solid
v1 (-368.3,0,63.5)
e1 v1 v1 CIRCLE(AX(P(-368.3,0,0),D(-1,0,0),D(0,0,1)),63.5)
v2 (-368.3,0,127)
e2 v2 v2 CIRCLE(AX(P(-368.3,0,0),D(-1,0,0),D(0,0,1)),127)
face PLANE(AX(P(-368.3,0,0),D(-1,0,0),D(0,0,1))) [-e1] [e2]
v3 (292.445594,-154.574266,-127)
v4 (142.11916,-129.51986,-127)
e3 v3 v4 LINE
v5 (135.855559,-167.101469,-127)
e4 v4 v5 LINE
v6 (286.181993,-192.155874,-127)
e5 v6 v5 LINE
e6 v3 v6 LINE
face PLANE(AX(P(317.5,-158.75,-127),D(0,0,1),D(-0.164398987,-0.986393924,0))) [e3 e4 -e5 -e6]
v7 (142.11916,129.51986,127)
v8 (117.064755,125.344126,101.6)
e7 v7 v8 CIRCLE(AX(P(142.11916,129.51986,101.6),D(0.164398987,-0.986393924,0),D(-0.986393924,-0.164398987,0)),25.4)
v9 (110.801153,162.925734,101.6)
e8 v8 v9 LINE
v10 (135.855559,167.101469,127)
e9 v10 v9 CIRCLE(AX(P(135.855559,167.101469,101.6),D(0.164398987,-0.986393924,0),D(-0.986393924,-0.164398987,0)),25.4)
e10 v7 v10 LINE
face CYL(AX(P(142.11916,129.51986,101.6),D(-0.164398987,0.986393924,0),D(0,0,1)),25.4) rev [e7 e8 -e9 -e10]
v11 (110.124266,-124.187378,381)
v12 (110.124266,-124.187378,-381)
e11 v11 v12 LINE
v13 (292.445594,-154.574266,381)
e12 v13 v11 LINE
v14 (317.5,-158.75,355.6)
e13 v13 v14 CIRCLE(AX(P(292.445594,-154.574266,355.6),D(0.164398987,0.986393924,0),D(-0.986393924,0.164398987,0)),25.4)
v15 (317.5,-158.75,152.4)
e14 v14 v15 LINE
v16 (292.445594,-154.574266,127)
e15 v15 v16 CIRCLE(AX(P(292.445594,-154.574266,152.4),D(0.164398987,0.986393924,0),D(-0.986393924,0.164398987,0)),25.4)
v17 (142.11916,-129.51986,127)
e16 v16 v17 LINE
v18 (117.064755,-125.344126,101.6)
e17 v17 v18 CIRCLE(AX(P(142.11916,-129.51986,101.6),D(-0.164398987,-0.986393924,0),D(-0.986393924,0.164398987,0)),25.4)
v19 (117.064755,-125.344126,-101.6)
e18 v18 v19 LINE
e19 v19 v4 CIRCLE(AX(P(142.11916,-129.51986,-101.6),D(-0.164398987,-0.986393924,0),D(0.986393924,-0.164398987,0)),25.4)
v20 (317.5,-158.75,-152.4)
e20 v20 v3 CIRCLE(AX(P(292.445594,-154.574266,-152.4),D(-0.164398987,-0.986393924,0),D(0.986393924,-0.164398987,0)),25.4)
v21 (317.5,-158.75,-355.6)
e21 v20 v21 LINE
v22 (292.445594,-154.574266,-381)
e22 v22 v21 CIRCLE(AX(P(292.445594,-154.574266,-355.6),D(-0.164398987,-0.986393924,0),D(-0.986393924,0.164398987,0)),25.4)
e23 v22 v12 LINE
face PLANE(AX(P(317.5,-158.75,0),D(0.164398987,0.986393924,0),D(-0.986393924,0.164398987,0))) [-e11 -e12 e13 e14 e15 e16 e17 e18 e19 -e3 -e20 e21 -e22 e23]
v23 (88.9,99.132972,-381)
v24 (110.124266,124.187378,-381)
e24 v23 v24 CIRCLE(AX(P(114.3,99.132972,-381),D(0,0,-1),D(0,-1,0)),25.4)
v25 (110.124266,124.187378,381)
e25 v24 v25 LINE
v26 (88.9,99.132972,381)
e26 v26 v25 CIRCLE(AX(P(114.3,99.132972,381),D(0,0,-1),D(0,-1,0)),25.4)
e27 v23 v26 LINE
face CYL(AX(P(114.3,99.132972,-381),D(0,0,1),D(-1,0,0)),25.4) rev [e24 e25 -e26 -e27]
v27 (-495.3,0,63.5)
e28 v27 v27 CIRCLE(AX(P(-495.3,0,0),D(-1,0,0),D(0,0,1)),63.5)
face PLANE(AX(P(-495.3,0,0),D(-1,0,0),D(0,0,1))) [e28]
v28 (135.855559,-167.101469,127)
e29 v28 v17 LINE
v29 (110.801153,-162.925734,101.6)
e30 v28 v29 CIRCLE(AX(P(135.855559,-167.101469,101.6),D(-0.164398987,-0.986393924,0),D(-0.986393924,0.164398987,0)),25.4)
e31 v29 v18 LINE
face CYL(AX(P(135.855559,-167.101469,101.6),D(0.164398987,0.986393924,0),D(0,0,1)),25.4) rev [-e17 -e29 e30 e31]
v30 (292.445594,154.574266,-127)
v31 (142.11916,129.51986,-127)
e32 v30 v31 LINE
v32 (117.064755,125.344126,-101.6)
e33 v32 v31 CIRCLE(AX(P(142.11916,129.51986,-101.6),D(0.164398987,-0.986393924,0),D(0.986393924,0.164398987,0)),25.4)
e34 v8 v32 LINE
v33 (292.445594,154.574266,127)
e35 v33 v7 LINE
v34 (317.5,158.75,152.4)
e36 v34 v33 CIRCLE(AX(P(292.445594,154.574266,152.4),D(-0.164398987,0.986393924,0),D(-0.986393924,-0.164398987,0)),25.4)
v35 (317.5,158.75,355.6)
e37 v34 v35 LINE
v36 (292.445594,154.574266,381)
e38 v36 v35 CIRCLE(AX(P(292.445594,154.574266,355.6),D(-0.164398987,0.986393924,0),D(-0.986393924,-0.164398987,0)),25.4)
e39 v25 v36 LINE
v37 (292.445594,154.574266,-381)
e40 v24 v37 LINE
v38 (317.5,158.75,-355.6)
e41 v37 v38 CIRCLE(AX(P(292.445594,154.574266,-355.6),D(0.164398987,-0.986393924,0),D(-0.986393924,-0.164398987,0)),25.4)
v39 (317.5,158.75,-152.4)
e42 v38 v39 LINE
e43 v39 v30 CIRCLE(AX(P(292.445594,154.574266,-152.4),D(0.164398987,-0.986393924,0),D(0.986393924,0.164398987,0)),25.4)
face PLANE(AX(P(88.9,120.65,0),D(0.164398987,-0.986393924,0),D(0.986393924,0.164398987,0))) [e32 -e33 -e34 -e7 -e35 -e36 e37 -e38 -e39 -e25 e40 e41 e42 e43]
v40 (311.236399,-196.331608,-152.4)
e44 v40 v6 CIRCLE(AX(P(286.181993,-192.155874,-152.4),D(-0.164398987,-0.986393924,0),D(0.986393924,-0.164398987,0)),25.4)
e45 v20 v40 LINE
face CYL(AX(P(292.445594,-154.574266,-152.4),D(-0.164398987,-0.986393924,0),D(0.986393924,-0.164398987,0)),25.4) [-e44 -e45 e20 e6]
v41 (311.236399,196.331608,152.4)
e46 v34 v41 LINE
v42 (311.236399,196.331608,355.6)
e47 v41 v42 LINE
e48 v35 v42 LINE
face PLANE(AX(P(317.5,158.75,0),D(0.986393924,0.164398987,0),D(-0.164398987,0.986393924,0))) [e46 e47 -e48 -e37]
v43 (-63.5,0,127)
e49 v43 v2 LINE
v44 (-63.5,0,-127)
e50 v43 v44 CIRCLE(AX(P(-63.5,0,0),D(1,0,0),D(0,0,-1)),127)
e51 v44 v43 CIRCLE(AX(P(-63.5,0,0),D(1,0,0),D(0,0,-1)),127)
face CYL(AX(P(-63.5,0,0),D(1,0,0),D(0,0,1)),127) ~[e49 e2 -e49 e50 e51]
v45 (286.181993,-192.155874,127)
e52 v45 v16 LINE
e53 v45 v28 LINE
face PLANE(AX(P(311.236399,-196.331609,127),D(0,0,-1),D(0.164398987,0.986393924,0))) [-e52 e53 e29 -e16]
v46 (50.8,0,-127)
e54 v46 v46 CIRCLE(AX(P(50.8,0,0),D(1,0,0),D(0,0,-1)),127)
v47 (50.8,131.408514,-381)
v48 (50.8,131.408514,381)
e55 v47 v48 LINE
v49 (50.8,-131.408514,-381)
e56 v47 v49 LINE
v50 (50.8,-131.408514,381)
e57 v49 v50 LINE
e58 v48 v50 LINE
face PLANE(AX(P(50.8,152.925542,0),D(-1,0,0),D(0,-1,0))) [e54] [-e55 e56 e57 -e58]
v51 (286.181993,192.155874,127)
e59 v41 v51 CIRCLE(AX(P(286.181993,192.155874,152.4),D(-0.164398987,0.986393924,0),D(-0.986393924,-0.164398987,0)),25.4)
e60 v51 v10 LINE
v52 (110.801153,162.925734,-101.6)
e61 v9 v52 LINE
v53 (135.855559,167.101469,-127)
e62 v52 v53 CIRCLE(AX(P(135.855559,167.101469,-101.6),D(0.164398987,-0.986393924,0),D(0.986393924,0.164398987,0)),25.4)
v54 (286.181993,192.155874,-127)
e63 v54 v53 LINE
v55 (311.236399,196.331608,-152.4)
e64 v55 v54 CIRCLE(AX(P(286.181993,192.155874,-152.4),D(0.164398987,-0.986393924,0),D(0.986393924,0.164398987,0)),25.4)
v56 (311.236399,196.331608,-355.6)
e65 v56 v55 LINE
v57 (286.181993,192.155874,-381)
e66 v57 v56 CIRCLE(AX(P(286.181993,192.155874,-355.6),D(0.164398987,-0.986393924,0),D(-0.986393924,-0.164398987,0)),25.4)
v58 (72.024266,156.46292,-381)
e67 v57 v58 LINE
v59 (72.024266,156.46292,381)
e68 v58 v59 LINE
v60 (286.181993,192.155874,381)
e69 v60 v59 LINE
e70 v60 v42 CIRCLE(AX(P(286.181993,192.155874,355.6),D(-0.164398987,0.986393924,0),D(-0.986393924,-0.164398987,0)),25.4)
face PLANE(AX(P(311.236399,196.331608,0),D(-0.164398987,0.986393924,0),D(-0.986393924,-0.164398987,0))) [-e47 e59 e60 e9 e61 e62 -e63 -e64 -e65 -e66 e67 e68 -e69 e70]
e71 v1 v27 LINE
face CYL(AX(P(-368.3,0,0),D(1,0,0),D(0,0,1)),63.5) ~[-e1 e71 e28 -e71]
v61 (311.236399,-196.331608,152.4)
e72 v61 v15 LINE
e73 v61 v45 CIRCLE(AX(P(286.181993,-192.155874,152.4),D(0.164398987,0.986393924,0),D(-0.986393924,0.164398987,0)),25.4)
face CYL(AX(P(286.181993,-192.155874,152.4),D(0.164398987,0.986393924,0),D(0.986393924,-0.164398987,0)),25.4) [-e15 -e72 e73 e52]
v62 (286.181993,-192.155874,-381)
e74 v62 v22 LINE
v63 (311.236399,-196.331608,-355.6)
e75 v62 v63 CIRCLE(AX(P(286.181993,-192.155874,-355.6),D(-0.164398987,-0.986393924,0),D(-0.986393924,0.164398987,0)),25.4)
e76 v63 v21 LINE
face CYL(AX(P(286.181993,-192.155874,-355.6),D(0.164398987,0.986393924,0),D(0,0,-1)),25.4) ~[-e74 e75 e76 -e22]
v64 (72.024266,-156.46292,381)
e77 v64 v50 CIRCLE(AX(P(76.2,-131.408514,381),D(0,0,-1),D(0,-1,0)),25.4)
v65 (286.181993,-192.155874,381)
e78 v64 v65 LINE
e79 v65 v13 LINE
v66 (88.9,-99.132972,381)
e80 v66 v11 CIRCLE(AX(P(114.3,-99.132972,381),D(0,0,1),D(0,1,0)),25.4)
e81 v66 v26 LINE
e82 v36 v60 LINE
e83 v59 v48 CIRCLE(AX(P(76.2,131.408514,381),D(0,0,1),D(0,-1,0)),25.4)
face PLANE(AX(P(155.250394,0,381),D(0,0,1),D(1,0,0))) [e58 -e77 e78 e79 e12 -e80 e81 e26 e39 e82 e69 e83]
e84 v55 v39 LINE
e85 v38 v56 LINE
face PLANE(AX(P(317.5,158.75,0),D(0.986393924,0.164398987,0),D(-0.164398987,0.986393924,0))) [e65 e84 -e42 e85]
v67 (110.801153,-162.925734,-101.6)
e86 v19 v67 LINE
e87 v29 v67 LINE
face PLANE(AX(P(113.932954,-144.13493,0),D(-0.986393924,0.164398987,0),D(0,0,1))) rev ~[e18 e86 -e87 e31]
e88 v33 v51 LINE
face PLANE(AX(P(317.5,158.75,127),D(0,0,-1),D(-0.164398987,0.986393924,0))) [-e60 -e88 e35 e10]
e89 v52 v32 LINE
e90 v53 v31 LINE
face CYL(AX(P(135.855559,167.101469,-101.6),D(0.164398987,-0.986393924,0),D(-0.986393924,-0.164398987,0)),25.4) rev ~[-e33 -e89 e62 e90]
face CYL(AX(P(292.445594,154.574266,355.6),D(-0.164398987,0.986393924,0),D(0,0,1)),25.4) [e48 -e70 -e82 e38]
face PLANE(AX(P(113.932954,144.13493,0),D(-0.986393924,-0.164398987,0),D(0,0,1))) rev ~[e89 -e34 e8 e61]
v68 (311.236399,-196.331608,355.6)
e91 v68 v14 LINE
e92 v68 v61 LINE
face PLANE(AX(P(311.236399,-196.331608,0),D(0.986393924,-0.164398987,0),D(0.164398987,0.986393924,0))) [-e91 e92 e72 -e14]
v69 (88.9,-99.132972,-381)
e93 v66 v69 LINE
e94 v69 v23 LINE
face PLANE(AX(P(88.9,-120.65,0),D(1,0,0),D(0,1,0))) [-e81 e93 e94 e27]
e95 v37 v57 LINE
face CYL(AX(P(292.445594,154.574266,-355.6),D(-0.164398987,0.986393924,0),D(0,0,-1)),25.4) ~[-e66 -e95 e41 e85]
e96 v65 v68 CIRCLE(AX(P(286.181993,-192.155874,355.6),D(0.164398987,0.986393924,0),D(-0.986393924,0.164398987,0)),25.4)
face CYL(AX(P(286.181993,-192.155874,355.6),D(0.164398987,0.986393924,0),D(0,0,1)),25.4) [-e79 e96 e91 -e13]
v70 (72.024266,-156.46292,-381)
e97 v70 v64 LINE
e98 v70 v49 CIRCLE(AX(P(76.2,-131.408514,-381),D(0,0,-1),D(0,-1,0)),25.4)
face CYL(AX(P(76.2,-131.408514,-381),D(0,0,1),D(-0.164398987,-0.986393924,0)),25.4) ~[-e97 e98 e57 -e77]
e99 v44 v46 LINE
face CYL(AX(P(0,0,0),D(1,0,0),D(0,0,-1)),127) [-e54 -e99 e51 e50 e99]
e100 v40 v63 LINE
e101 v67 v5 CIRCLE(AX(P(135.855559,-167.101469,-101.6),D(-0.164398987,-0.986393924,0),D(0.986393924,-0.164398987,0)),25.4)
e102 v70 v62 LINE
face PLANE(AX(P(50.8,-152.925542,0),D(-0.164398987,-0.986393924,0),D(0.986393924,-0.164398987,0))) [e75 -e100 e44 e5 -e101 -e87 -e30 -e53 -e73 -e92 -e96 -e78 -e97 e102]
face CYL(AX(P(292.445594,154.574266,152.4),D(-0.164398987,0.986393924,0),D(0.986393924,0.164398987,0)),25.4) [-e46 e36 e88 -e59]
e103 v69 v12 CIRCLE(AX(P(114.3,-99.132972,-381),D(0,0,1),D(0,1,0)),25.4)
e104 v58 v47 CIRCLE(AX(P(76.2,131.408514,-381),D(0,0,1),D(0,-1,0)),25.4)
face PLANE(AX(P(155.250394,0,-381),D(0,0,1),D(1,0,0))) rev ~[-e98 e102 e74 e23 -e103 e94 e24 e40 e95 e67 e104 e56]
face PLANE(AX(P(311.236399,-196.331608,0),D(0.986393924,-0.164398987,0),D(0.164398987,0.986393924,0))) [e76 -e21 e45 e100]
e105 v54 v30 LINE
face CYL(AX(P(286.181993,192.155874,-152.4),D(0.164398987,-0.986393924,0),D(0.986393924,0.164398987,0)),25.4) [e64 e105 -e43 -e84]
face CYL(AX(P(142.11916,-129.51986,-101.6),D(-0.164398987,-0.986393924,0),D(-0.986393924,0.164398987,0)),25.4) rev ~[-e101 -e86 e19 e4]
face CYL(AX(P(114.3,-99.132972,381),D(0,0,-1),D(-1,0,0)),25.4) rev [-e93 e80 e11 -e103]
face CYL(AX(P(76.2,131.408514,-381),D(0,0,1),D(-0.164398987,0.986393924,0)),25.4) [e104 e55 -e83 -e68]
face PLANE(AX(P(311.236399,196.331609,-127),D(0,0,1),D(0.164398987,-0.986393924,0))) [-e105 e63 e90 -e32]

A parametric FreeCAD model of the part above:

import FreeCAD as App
import Part
import Sketcher

V = App.Vector
Q = App.Units.Quantity


def edges_at(feature, points):
    """Names of the edges that pass closest to the given points."""
    edges = feature.Shape.Edges
    near = lambda p: min(range(len(edges)), key=lambda i: edges[i].distToShape(Part.Vertex(*p))[0])
    return sorted({f"Edge{near(p) + 1}" for p in points})


def add_polygon(sketch, points):
    """Adds a closed chain of lines whose ends are joined by coincident constraints."""
    first, n = sketch.GeometryCount, len(points)
    for a, b in zip(points, points[1:] + points[:1]):
        sketch.addGeometry(Part.LineSegment(App.Vector(*a, 0), App.Vector(*b, 0)), False)
    for i in range(n):
        sketch.addConstraint(Sketcher.Constraint("Coincident", first + i, 2, first + (i + 1) % n, 1))

doc = App.newDocument("Part")
body = doc.addObject("PartDesign::Body", "Body")

# Sketch on YZ plane
sketch1 = doc.addObject("Sketcher::SketchObject", "Sketch")
body.addObject(sketch1)
sketch1.AttachmentSupport = (doc.YZ_Plane, [""])
sketch1.MapMode = "FlatFace"
sketch1.addGeometry(Part.Circle(V(0, 0, 0), V(0, 0, 1), 127), False)
sketch1.addConstraint([
    Sketcher.Constraint("Coincident", 0, 3, -1, 1),
    Sketcher.Constraint("Diameter", 0, Q("10 in")),
])
pad1 = doc.addObject("PartDesign::Pad", "Pad")
body.addObject(pad1)
pad1.Profile = sketch1
pad1.Length = Q("5 in")
pad1.Midplane = True

# Sketch on XY plane
sketch2 = doc.addObject("Sketcher::SketchObject", "Sketch001")
body.addObject(sketch2)
sketch2.AttachmentSupport = (doc.XY_Plane, [""])
sketch2.MapMode = "FlatFace"
add_polygon(sketch2, [(88.9, -120.65), (88.9, 120.65), (317.5, 158.75), (311.236399, 196.331608), (50.8, 152.925542), (50.8, -152.925542), (311.236399, -196.331608), (317.5, -158.75)])  # lines 0-7
sketch2.addConstraint([
    Sketcher.Constraint("Vertical", 0),
    Sketcher.Constraint("Vertical", 4),
    Sketcher.Constraint("Symmetric", 2, 2, 5, 2, -1),
    Sketcher.Constraint("Symmetric", 1, 2, 6, 2, -1),
    Sketcher.Constraint("Perpendicular", 1, 2),
    Sketcher.Constraint("Perpendicular", 2, 3),
    Sketcher.Constraint("Perpendicular", 5, 6),
    Sketcher.Constraint("Perpendicular", 6, 7),
    Sketcher.Constraint("DistanceY", 0, 1, 0, 2, Q("9.5 in")),
    Sketcher.Constraint("DistanceX", -1, 1, 3, 2, Q("2 in")),
    Sketcher.Constraint("DistanceX", 0, 2, 1, 2, Q("9 in")),
    Sketcher.Constraint("DistanceY", 6, 2, 0, 2, Q("11 in")),
    Sketcher.Constraint("Distance", 2, Q("1.5 in")),
    Sketcher.Constraint("DistanceX", -1, 1, 0, 2, Q("3.5 in")),
])
pad2 = doc.addObject("PartDesign::Pad", "Pad001")
body.addObject(pad2)
pad2.Profile = sketch2
pad2.Length = Q("30 in")
pad2.Midplane = True

# Sketch on an angled plane
sketch3 = doc.addObject("Sketcher::SketchObject", "Sketch002")
body.addObject(sketch3)
sketch3.Placement = App.Placement(V(334.662162, 55.777027, 0), App.Rotation(V(0, 0, -1), V(-0.164398987, 0.986393924, 0), V(0.986393924, 0.164398987, 0), "ZXY"))
add_polygon(sketch3, [(-127, 104.393357), (127, 104.393357), (127, 142.493357), (-127, 142.493357)])  # lines 0-3
sketch3.addConstraint([
    Sketcher.Constraint("Horizontal", 0),
    Sketcher.Constraint("Vertical", 1),
    Sketcher.Constraint("Horizontal", 2),
    Sketcher.Constraint("Vertical", 3),
    Sketcher.Constraint("DistanceX", 0, 1, 0, 2, Q("10 in")),
    Sketcher.Constraint("DistanceY", 1, 1, 1, 2, Q("1.5 in")),
    Sketcher.Constraint("DistanceX", -1, 1, 0, 2, Q("5 in")),
    Sketcher.Constraint("DistanceY", -1, 1, 0, 2, Q("104.393357 mm")),
])
pocket1 = doc.addObject("PartDesign::Pocket", "Pocket")
body.addObject(pocket1)
pocket1.Profile = sketch3
pocket1.Length = Q("8 in")

# Sketch on an angled plane
sketch4 = doc.addObject("Sketcher::SketchObject", "Sketch003")
body.addObject(sketch4)
sketch4.Placement = App.Placement(V(334.662162, -55.777027, 0), App.Rotation(V(0, 0, -1), V(0.164398987, 0.986393924, 0), V(0.986393924, -0.164398987, 0), "ZXY"))
add_polygon(sketch4, [(-127, -142.493357), (127, -142.493357), (127, -104.393357), (-127, -104.393357)])  # lines 0-3
sketch4.addConstraint([
    Sketcher.Constraint("Horizontal", 0),
    Sketcher.Constraint("Vertical", 1),
    Sketcher.Constraint("Horizontal", 2),
    Sketcher.Constraint("Vertical", 3),
    Sketcher.Constraint("DistanceX", 0, 1, 0, 2, Q("10 in")),
    Sketcher.Constraint("DistanceY", 1, 1, 1, 2, Q("1.5 in")),
    Sketcher.Constraint("DistanceX", -1, 1, 0, 2, Q("5 in")),
    Sketcher.Constraint("DistanceY", 0, 2, -1, 1, Q("142.493357 mm")),
])
pocket2 = doc.addObject("PartDesign::Pocket", "Pocket001")
body.addObject(pocket2)
pocket2.Profile = sketch4
pocket2.Length = Q("8 in")
doc.recompute()

fillet = doc.addObject("PartDesign::Fillet", "Fillet")
body.addObject(fillet)
fillet.Base = (pocket2, edges_at(pocket2, [(88.9, -120.65, 0), (88.9, 120.65, 0)]))
fillet.Radius = Q("1 in")
doc.recompute()

fillet2 = doc.addObject("PartDesign::Fillet", "Fillet001")
body.addObject(fillet2)
fillet2.Base = (fillet, edges_at(fillet, [(50.8, 152.926, 0), (50.8, -152.926, 0)]))
fillet2.Radius = Q("1 in")
doc.recompute()

fillet3 = doc.addObject("PartDesign::Fillet", "Fillet002")
body.addObject(fillet3)
fillet3.Base = (fillet2, edges_at(fillet2, [
    (314.368, -177.541, 381),
    (113.933, 144.135, 127),
    (113.933, 144.135, -127),
    (314.368, 177.541, -127),
    (314.368, 177.541, 127),
    (113.933, -144.135, 127),
    (113.933, -144.135, -127),
    (314.368, -177.541, -127),
    (314.368, -177.541, 127),
    (314.368, 177.541, -381),
    (314.368, -177.541, -381),
    (314.368, 177.541, 381),
]))
fillet3.Radius = Q("1 in")

# Sketch on YZ plane
sketch5 = doc.addObject("Sketcher::SketchObject", "Sketch004")
body.addObject(sketch5)
sketch5.AttachmentSupport = (doc.YZ_Plane, [""])
sketch5.MapMode = "FlatFace"
sketch5.AttachmentOffset = App.Placement(V(0, 0, -2.5 * 25.4), App.Rotation())
sketch5.addGeometry(Part.Circle(V(0, 0, 0), V(0, 0, 1), 127), False)
sketch5.addConstraint([
    Sketcher.Constraint("Coincident", 0, 3, -1, 1),
    Sketcher.Constraint("Diameter", 0, Q("10 in")),
])
pad3 = doc.addObject("PartDesign::Pad", "Pad002")
body.addObject(pad3)
pad3.Profile = sketch5
pad3.Length = Q("12 in")
pad3.Reversed = True

# Sketch on YZ plane
sketch6 = doc.addObject("Sketcher::SketchObject", "Sketch005")
body.addObject(sketch6)
sketch6.AttachmentSupport = (doc.YZ_Plane, [""])
sketch6.MapMode = "FlatFace"
sketch6.AttachmentOffset = App.Placement(V(0, 0, -14.5 * 25.4), App.Rotation())
sketch6.addGeometry(Part.Circle(V(0, 0, 0), V(0, 0, 1), 63.5), False)
sketch6.addConstraint([
    Sketcher.Constraint("Coincident", 0, 3, -1, 1),
    Sketcher.Constraint("Diameter", 0, Q("5 in")),
])
pad4 = doc.addObject("PartDesign::Pad", "Pad003")
body.addObject(pad4)
pad4.Profile = sketch6
pad4.Length = Q("5 in")
pad4.Reversed = True

doc.recompute()
